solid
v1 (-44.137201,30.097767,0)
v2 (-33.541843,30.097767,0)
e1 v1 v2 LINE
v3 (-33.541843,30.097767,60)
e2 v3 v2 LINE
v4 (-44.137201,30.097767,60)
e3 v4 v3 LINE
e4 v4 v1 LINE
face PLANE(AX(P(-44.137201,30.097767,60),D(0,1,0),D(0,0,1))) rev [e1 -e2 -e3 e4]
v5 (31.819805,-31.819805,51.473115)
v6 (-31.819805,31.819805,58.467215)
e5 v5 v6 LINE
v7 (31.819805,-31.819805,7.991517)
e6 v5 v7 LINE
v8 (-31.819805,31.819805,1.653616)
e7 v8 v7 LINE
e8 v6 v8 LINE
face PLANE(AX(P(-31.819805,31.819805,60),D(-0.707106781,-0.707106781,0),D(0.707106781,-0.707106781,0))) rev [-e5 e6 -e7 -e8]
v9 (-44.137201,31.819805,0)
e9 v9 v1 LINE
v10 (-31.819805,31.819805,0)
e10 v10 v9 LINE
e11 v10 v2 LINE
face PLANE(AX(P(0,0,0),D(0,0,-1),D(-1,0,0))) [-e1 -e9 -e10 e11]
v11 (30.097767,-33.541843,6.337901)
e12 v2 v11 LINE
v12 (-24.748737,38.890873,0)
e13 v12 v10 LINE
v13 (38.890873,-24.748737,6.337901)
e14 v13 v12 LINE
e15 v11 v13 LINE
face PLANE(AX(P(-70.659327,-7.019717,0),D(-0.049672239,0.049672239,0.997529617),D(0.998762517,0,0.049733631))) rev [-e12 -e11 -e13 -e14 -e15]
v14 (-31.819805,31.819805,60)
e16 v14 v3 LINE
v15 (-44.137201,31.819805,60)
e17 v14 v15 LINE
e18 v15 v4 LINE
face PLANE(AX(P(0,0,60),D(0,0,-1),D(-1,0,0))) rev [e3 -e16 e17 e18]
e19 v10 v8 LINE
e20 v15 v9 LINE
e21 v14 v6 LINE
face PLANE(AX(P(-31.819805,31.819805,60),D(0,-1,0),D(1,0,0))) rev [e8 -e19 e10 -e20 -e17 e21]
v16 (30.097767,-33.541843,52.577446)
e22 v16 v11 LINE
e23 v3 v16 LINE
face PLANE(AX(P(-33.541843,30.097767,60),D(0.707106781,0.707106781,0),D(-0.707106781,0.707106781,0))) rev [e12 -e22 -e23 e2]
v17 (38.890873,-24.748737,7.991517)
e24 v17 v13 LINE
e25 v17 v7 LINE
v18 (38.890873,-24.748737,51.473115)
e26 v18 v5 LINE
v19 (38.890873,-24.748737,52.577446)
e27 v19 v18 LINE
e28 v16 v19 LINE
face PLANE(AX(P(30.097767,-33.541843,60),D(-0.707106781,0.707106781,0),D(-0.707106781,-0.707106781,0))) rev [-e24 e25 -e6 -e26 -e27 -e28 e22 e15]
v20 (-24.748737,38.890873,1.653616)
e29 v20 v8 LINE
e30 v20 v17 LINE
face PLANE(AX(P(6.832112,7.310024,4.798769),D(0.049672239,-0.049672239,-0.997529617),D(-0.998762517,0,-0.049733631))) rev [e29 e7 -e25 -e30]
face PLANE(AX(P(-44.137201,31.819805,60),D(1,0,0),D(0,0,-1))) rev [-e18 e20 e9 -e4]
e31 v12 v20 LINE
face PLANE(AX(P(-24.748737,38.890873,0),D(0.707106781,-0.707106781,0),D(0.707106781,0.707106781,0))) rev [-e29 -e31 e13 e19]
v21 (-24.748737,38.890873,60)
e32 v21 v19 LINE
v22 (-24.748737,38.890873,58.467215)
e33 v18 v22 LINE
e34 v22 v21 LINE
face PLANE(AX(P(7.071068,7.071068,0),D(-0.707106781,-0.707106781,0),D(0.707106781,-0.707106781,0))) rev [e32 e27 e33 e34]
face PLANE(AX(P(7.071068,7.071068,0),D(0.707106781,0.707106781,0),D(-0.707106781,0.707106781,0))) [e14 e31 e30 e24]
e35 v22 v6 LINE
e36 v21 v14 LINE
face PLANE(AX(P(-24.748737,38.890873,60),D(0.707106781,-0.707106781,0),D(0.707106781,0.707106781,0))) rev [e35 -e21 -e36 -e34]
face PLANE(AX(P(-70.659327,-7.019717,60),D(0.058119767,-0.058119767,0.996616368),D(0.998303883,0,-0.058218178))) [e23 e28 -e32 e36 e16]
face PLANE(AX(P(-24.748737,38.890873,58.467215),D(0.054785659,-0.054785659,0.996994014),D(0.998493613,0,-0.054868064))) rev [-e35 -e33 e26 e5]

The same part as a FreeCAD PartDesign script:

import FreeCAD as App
import Part
import Sketcher
Q = App.Units.Quantity

doc = App.newDocument("Part")
body = doc.addObject("PartDesign::Body", "Body")

# Sketch on XY plane
sketch1 = doc.addObject("Sketcher::SketchObject", "Sketch")
body.addObject(sketch1)
sketch1.AttachmentSupport = (doc.XY_Plane, [""])
sketch1.MapMode = "FlatFace"
sketch1.addGeometry([
    Part.LineSegment(App.Vector(31.8, -31.8, 0), App.Vector(-31.8, 31.8, 0)),  # 0
    Part.LineSegment(App.Vector(-31.8, 31.8, 0), App.Vector(-44.1, 31.8, 0)),  # 1
    Part.LineSegment(App.Vector(-44.1, 31.8, 0), App.Vector(-44.1, 30.1, 0)),  # 2
    Part.LineSegment(App.Vector(-44.1, 30.1, 0), App.Vector(-33.5, 30.1, 0)),  # 3
    Part.LineSegment(App.Vector(-33.5, 30.1, 0), App.Vector(30.1, -33.5, 0)),  # 4
    Part.LineSegment(App.Vector(30.1, -33.5, 0), App.Vector(31.8, -31.8, 0)),  # 5
], False)
sketch1.addConstraint([
    Sketcher.Constraint("Coincident", 0, 2, 1, 1),
    Sketcher.Constraint("Coincident", 1, 2, 2, 1),
    Sketcher.Constraint("Coincident", 2, 2, 3, 1),
    Sketcher.Constraint("Coincident", 3, 2, 4, 1),
    Sketcher.Constraint("Coincident", 4, 2, 5, 1),
    Sketcher.Constraint("Coincident", 5, 2, 0, 1),
    Sketcher.Constraint("Horizontal", 1),
    Sketcher.Constraint("Vertical", 2),
    Sketcher.Constraint("Horizontal", 3),
    Sketcher.Constraint("Symmetric", 0, 2, 5, 2, -1, 1),
    Sketcher.Constraint("Parallel", 0, 4),
    Sketcher.Constraint("Perpendicular", 4, 5),
    Sketcher.Constraint("Equal", 0, 4),
    Sketcher.Constraint("Angle", 0, Q("135 deg")),
    Sketcher.Constraint("Distance", 0, 90.0),
    Sketcher.Constraint("DistanceX", 3, 1, 3, 2, 10.595358),
    Sketcher.Constraint("DistanceX", 1, 2, -1, 1, 44.137201),
])
pad1 = doc.addObject("PartDesign::Pad", "Pad")
body.addObject(pad1)
pad1.Profile = sketch1
pad1.Length = 60

# Sketch on an angled plane
sketch2 = doc.addObject("Sketcher::SketchObject", "Sketch001")
body.addObject(sketch2)
sketch2.Placement = App.Placement(App.Vector(0, 0, 0), App.Rotation(App.Vector(0.707106781, -0.707106781, 0), App.Vector(0, 0, -0.999999999), App.Vector(0.707106781, 0.707106781, 0), "ZXY"))
sketch2.addGeometry([
    Part.LineSegment(App.Vector(45, -53, 0), App.Vector(-45, -60, 0)),
    Part.LineSegment(App.Vector(-45, -60, 0), App.Vector(-4, -558, 0)),
    Part.LineSegment(App.Vector(-4, -558, 0), App.Vector(86, -551, 0)),
    Part.LineSegment(App.Vector(86, -551, 0), App.Vector(45, -53, 0)),
], False)
sketch2.addConstraint([
    Sketcher.Constraint("Coincident", 0, 2, 1, 1),
    Sketcher.Constraint("Coincident", 1, 2, 2, 1),
    Sketcher.Constraint("Coincident", 2, 2, 3, 1),
    Sketcher.Constraint("Coincident", 3, 2, 0, 1),
    Sketcher.Constraint("Perpendicular", 0, 1),
    Sketcher.Constraint("Perpendicular", 1, 2),
    Sketcher.Constraint("Perpendicular", 2, 3),
    Sketcher.Constraint("Distance", 1, 499.999999),
    Sketcher.Constraint("DistanceX", 0, 2, -1, 1, 45.0),
    Sketcher.Constraint("DistanceY", 0, 2, -1, 1, 60.0),
    Sketcher.Constraint("DistanceX", -1, 1, 3, 2, 45.0),
    Sketcher.Constraint("Distance", 0, 90.305561),
])
pocket1 = doc.addObject("PartDesign::Pocket", "Pocket")
body.addObject(pocket1)
pocket1.Profile = sketch2
pocket1.Type = "ThroughAll"
pocket1.Midplane = True

# Sketch on an angled plane
sketch3 = doc.addObject("Sketcher::SketchObject", "Sketch002")
body.addObject(sketch3)
sketch3.Placement = App.Placement(App.Vector(0, 0, 0), App.Rotation(App.Vector(0.707106781, -0.707106781, 0), App.Vector(0, 0, -0.999999999), App.Vector(0.707106781, 0.707106781, 0), "ZXY"))
sketch3.addGeometry([
    Part.LineSegment(App.Vector(-45, 0, 0), App.Vector(45, -6, 0)),
    Part.LineSegment(App.Vector(45, -6, 0), App.Vector(80, 492, 0)),
    Part.LineSegment(App.Vector(80, 492, 0), App.Vector(-10, 499, 0)),
    Part.LineSegment(App.Vector(-10, 499, 0), App.Vector(-45, 0, 0)),
], False)
sketch3.addConstraint([
    Sketcher.Constraint("Coincident", 0, 2, 1, 1),
    Sketcher.Constraint("Coincident", 1, 2, 2, 1),
    Sketcher.Constraint("Coincident", 2, 2, 3, 1),
    Sketcher.Constraint("Coincident", 3, 2, 0, 1),
    Sketcher.Constraint("PointOnObject", 3, 2, -1),
    Sketcher.Constraint("Perpendicular", 0, 1),
    Sketcher.Constraint("Perpendicular", 1, 2),
    Sketcher.Constraint("Perpendicular", 2, 3),
    Sketcher.Constraint("Distance", 1, 499.999999),
    Sketcher.Constraint("DistanceX", -1, 1, 0, 2, 45.0),
    Sketcher.Constraint("DistanceX", 3, 2, -1, 1, 45.0),
    Sketcher.Constraint("DistanceY", 0, 2, -1, 1, 6.337901),
])
pocket2 = doc.addObject("PartDesign::Pocket", "Pocket001")
body.addObject(pocket2)
pocket2.Profile = sketch3
pocket2.Type = "ThroughAll"
pocket2.Midplane = True

# Sketch on an angled plane
sketch4 = doc.addObject("Sketcher::SketchObject", "Sketch003")
body.addObject(sketch4)
sketch4.Placement = App.Placement(App.Vector(0, 0, 0), App.Rotation(App.Vector(0, 0, -1), App.Vector(-0.707106781, 0.707106781, 0), App.Vector(0.707106781, 0.707106781, 0), "ZXY"))
sketch4.addGeometry([
    Part.LineSegment(App.Vector(-58.5, 45, 0), App.Vector(-60, 45, 0)),
    Part.LineSegment(App.Vector(-60, 45, 0), App.Vector(-52.6, -45, 0)),
    Part.LineSegment(App.Vector(-52.6, -45, 0), App.Vector(-51.5, -45, 0)),
    Part.LineSegment(App.Vector(-51.5, -45, 0), App.Vector(-58.5, 45, 0)),
], False)
sketch4.addConstraint([
    Sketcher.Constraint("Coincident", 0, 2, 1, 1),
    Sketcher.Constraint("Coincident", 1, 2, 2, 1),
    Sketcher.Constraint("Coincident", 2, 2, 3, 1),
    Sketcher.Constraint("Coincident", 3, 2, 0, 1),
    Sketcher.Constraint("Horizontal", 0),
    Sketcher.Constraint("Horizontal", 2),
    Sketcher.Constraint("DistanceX", 0, 2, -1, 1, 60.0),
    Sketcher.Constraint("DistanceY", -1, 1, 0, 2, 45.0),
    Sketcher.Constraint("DistanceY", 1, 2, -1, 1, 45.0),
    Sketcher.Constraint("DistanceX", 2, 1, 2, 2, 1.104332),
    Sketcher.Constraint("DistanceX", 3, 2, 2, 2, 6.9941),
    Sketcher.Constraint("Distance", 1, 90.305561),
])
pad2 = doc.addObject("PartDesign::Pad", "Pad001")
body.addObject(pad2)
pad2.Profile = sketch4
pad2.Length = 10

# Sketch on an angled plane
sketch5 = doc.addObject("Sketcher::SketchObject", "Sketch004")
body.addObject(sketch5)
sketch5.Placement = App.Placement(App.Vector(0, 0, 0), App.Rotation(App.Vector(0, 0, -1), App.Vector(-0.707106781, 0.707106781, 0), App.Vector(0.707106781, 0.707106781, 0), "ZXY"))
sketch5.addGeometry([
    Part.LineSegment(App.Vector(-6.3, -45, 0), App.Vector(0, 45, 0)),
    Part.LineSegment(App.Vector(0, 45, 0), App.Vector(-1.7, 45, 0)),
    Part.LineSegment(App.Vector(-1.7, 45, 0), App.Vector(-8, -45, 0)),
    Part.LineSegment(App.Vector(-8, -45, 0), App.Vector(-6.3, -45, 0)),
], False)
sketch5.addConstraint([
    Sketcher.Constraint("Coincident", 0, 2, 1, 1),
    Sketcher.Constraint("Coincident", 1, 2, 2, 1),
    Sketcher.Constraint("Coincident", 2, 2, 3, 1),
    Sketcher.Constraint("Coincident", 3, 2, 0, 1),
    Sketcher.Constraint("Horizontal", 1),
    Sketcher.Constraint("Horizontal", 3),
    Sketcher.Constraint("PointOnObject", 0, 2, -2),
    Sketcher.Constraint("Parallel", 0, 2),
    Sketcher.Constraint("DistanceY", -1, 1, 0, 2, 45.0),
    Sketcher.Constraint("DistanceY", 2, 2, -1, 1, 45.0),
    Sketcher.Constraint("DistanceX", 3, 2, -1, 1, 6.337901),
    Sketcher.Constraint("DistanceX", 1, 2, 1, 1, 1.653616),
])
pad3 = doc.addObject("PartDesign::Pad", "Pad002")
body.addObject(pad3)
pad3.Profile = sketch5
pad3.Length = 10

doc.recompute()
